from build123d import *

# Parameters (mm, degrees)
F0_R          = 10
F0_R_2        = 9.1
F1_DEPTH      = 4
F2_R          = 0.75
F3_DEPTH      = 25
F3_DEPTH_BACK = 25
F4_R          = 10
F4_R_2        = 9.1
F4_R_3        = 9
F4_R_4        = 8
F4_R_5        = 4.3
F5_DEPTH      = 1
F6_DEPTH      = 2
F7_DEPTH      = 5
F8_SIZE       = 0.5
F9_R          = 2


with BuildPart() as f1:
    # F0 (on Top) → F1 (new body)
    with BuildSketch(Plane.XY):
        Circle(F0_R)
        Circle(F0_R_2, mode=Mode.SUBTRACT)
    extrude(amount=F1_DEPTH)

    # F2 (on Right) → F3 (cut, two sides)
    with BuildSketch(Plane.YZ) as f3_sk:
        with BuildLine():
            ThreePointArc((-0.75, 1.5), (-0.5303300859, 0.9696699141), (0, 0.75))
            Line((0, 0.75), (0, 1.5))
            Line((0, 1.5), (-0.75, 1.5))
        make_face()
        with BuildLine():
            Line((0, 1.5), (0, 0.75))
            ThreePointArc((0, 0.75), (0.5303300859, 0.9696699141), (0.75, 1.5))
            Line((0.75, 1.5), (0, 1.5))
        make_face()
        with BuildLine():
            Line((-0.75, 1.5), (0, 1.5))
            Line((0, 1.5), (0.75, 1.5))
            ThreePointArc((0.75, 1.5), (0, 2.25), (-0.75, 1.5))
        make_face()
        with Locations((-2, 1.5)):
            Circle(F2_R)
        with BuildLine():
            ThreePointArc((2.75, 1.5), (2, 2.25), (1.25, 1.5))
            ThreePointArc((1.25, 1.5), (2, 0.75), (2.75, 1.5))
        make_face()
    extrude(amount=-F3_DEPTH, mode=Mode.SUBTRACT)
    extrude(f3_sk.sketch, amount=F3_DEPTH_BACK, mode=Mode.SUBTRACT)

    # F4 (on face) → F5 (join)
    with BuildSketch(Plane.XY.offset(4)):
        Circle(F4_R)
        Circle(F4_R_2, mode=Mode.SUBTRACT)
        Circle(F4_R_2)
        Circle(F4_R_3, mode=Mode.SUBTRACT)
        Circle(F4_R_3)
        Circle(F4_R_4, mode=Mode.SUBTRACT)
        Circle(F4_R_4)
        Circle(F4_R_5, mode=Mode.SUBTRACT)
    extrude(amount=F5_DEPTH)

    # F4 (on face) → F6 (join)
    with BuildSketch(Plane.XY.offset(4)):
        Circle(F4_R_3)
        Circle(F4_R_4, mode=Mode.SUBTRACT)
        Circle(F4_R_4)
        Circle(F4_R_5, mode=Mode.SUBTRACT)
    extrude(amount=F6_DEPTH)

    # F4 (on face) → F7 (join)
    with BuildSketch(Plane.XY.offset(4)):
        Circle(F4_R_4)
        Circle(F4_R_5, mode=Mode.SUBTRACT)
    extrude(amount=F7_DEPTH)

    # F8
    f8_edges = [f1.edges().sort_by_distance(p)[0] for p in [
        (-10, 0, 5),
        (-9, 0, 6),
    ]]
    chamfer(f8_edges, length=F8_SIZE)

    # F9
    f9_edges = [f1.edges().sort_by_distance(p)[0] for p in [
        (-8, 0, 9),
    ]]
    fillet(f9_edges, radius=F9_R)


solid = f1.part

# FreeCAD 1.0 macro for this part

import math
import FreeCAD as App
import Part
import Sketcher
Q = App.Units.Quantity


def edges_at(feature, points):
    """Names of the edges that pass closest to the given points."""
    edges = feature.Shape.Edges
    near = lambda p: min(range(len(edges)), key=lambda i: edges[i].distToShape(Part.Vertex(*p))[0])
    return sorted({f"Edge{near(p) + 1}" for p in points})

doc = App.newDocument("Part")
params = doc.addObject("Spreadsheet::Sheet", "Params")
for row, (alias, value) in enumerate([
    ("sketch1_diameter", "20 mm"),
    ("sketch1_diameter2", "18.2 mm"),
    ("pad1_length", "4 mm"),
    ("sketch2_diameter", "1.5 mm"),
    ("sketch3_diameter", "20 mm"),
    ("sketch3_diameter2", "8.6 mm"),
    ("pad2_length", "1 mm"),
    ("sketch4_diameter", "18 mm"),
    ("sketch4_diameter2", "8.6 mm"),
    ("pad3_length", "2 mm"),
    ("sketch5_diameter", "16 mm"),
    ("sketch5_diameter2", "8.6 mm"),
    ("pad4_length", "5 mm"),
    ("chamfer_size", "0.5 mm"),
    ("fillet_radius", "2 mm"),
], start=1):
    params.set(f"A{row}", alias)
    params.set(f"B{row}", "=" + value)
    params.setAlias(f"B{row}", alias)

body = doc.addObject("PartDesign::Body", "Body")

sketch1 = doc.addObject("Sketcher::SketchObject", "Sketch")
body.addObject(sketch1)
sketch1.AttachmentSupport = (doc.XY_Plane, [""])
sketch1.MapMode = "FlatFace"
sketch1.addGeometry(Part.Circle(App.Vector(0, 0, 0), App.Vector(0, 0, 1), 10), False)
sketch1.addGeometry(Part.Circle(App.Vector(0, 0, 0), App.Vector(0, 0, 1), 9), False)
sketch1.addConstraint(Sketcher.Constraint("Coincident", 0, 3, -1, 1))
sketch1.addConstraint(Sketcher.Constraint("Coincident", 1, 3, -1, 1))
sketch1.addConstraint(Sketcher.Constraint("Diameter", 0, Q("20 mm")))
sketch1.addConstraint(Sketcher.Constraint("Diameter", 1, Q("18.2 mm")))
sketch1.setExpression("Constraints[2]", "Params.sketch1_diameter")
sketch1.setExpression("Constraints[3]", "Params.sketch1_diameter2")
pad1 = doc.addObject("PartDesign::Pad", "Pad")
body.addObject(pad1)
pad1.Profile = sketch1
pad1.setExpression("Length", "Params.pad1_length")

sketch2 = doc.addObject("Sketcher::SketchObject", "Sketch001")
body.addObject(sketch2)
sketch2.AttachmentSupport = (doc.YZ_Plane, [""])
sketch2.MapMode = "FlatFace"
sketch2.addGeometry(Part.ArcOfCircle(Part.Circle(App.Vector(0, 1.5, 0), App.Vector(0, 0, 1), 0.8), math.radians(180), math.radians(270)), False)
sketch2.addGeometry(Part.ArcOfCircle(Part.Circle(App.Vector(0, 1.5, 0), App.Vector(0, 0, 1), 0.8), math.radians(-90), math.radians(0)), False)
sketch2.addGeometry(Part.ArcOfCircle(Part.Circle(App.Vector(0, 1.5, 0), App.Vector(0, 0, 1), 0.8), math.radians(0), math.radians(180)), False)
sketch2.addGeometry(Part.Circle(App.Vector(-2, 1.5, 0), App.Vector(0, 0, 1), 0.8), False)
sketch2.addGeometry(Part.Circle(App.Vector(2, 1.5, 0), App.Vector(0, 0, 1), 0.8), False)
sketch2.addConstraint(Sketcher.Constraint("Tangent", 0, 2, 1, 1))
sketch2.addConstraint(Sketcher.Constraint("Tangent", 1, 2, 2, 1))
sketch2.addConstraint(Sketcher.Constraint("Tangent", 2, 2, 0, 1))
sketch2.addConstraint(Sketcher.Constraint("Equal", 2, 3))
sketch2.addConstraint(Sketcher.Constraint("Equal", 3, 4))
sketch2.addConstraint(Sketcher.Constraint("Symmetric", 3, 3, 4, 3, -2))
sketch2.addConstraint(Sketcher.Constraint("Symmetric", 1, 2, 2, 2, -2))
sketch2.addConstraint(Sketcher.Constraint("PointOnObject", 0, 2, -2))
sketch2.addConstraint(Sketcher.Constraint("Horizontal", 2, 3, 3, 3))
sketch2.addConstraint(Sketcher.Constraint("Horizontal", 4, 3, 1, 2))
sketch2.addConstraint(Sketcher.Constraint("Diameter", 3, Q("1.5 mm")))
sketch2.addConstraint(Sketcher.Constraint("DistanceX", 3, 3, -1, 1, Q("2 mm")))
sketch2.addConstraint(Sketcher.Constraint("DistanceY", -1, 1, 0, 3, Q("1.5 mm")))
sketch2.setExpression("Constraints[10]", "Params.sketch2_diameter")
pocket1 = doc.addObject("PartDesign::Pocket", "Pocket")
body.addObject(pocket1)
pocket1.Profile = sketch2
pocket1.Type = "ThroughAll"
pocket1.Midplane = True

sketch3 = doc.addObject("Sketcher::SketchObject", "Sketch002")
body.addObject(sketch3)
sketch3.AttachmentSupport = (doc.XY_Plane, [""])
sketch3.MapMode = "FlatFace"
sketch3.AttachmentOffset = App.Placement(App.Vector(0, 0, 4), App.Rotation())
sketch3.addGeometry(Part.Circle(App.Vector(0, 0, 0), App.Vector(0, 0, 1), 10), False)
sketch3.addGeometry(Part.Circle(App.Vector(0, 0, 0), App.Vector(0, 0, 1), 4.3), False)
sketch3.addConstraint(Sketcher.Constraint("Coincident", 0, 3, -1, 1))
sketch3.addConstraint(Sketcher.Constraint("Coincident", 1, 3, -1, 1))
sketch3.addConstraint(Sketcher.Constraint("Diameter", 0, Q("20 mm")))
sketch3.addConstraint(Sketcher.Constraint("Diameter", 1, Q("8.6 mm")))
sketch3.setExpression("Constraints[2]", "Params.sketch3_diameter")
sketch3.setExpression("Constraints[3]", "Params.sketch3_diameter2")
pad2 = doc.addObject("PartDesign::Pad", "Pad001")
body.addObject(pad2)
pad2.Profile = sketch3
pad2.setExpression("Length", "Params.pad2_length")

sketch4 = doc.addObject("Sketcher::SketchObject", "Sketch003")
body.addObject(sketch4)
sketch4.AttachmentSupport = (doc.XY_Plane, [""])
sketch4.MapMode = "FlatFace"
sketch4.AttachmentOffset = App.Placement(App.Vector(0, 0, 4), App.Rotation())
sketch4.addGeometry(Part.Circle(App.Vector(0, 0, 0), App.Vector(0, 0, 1), 9), False)
sketch4.addGeometry(Part.Circle(App.Vector(0, 0, 0), App.Vector(0, 0, 1), 4.3), False)
sketch4.addConstraint(Sketcher.Constraint("Coincident", 0, 3, -1, 1))
sketch4.addConstraint(Sketcher.Constraint("Coincident", 1, 3, -1, 1))
sketch4.addConstraint(Sketcher.Constraint("Diameter", 0, Q("18 mm")))
sketch4.addConstraint(Sketcher.Constraint("Diameter", 1, Q("8.6 mm")))
sketch4.setExpression("Constraints[2]", "Params.sketch4_diameter")
sketch4.setExpression("Constraints[3]", "Params.sketch4_diameter2")
pad3 = doc.addObject("PartDesign::Pad", "Pad002")
body.addObject(pad3)
pad3.Profile = sketch4
pad3.setExpression("Length", "Params.pad3_length")

sketch5 = doc.addObject("Sketcher::SketchObject", "Sketch004")
body.addObject(sketch5)
sketch5.AttachmentSupport = (doc.XY_Plane, [""])
sketch5.MapMode = "FlatFace"
sketch5.AttachmentOffset = App.Placement(App.Vector(0, 0, 4), App.Rotation())
sketch5.addGeometry(Part.Circle(App.Vector(0, 0, 0), App.Vector(0, 0, 1), 8), False)
sketch5.addGeometry(Part.Circle(App.Vector(0, 0, 0), App.Vector(0, 0, 1), 4.3), False)
sketch5.addConstraint(Sketcher.Constraint("Coincident", 0, 3, -1, 1))
sketch5.addConstraint(Sketcher.Constraint("Coincident", 1, 3, -1, 1))
sketch5.addConstraint(Sketcher.Constraint("Diameter", 0, Q("16 mm")))
sketch5.addConstraint(Sketcher.Constraint("Diameter", 1, Q("8.6 mm")))
sketch5.setExpression("Constraints[2]", "Params.sketch5_diameter")
sketch5.setExpression("Constraints[3]", "Params.sketch5_diameter2")
pad4 = doc.addObject("PartDesign::Pad", "Pad003")
body.addObject(pad4)
pad4.Profile = sketch5
pad4.setExpression("Length", "Params.pad4_length")
doc.recompute()

chamfer = doc.addObject("PartDesign::Chamfer", "Chamfer")
body.addObject(chamfer)
chamfer.Base = (pad4, edges_at(pad4, [(-10, 0, 5), (-9, 0, 6)]))
chamfer.setExpression("Size", "Params.chamfer_size")
doc.recompute()

fillet = doc.addObject("PartDesign::Fillet", "Fillet")
body.addObject(fillet)
fillet.Base = (chamfer, edges_at(chamfer, [(-8, 0, 9)]))
fillet.setExpression("Radius", "Params.fillet_radius")

doc.recompute()
